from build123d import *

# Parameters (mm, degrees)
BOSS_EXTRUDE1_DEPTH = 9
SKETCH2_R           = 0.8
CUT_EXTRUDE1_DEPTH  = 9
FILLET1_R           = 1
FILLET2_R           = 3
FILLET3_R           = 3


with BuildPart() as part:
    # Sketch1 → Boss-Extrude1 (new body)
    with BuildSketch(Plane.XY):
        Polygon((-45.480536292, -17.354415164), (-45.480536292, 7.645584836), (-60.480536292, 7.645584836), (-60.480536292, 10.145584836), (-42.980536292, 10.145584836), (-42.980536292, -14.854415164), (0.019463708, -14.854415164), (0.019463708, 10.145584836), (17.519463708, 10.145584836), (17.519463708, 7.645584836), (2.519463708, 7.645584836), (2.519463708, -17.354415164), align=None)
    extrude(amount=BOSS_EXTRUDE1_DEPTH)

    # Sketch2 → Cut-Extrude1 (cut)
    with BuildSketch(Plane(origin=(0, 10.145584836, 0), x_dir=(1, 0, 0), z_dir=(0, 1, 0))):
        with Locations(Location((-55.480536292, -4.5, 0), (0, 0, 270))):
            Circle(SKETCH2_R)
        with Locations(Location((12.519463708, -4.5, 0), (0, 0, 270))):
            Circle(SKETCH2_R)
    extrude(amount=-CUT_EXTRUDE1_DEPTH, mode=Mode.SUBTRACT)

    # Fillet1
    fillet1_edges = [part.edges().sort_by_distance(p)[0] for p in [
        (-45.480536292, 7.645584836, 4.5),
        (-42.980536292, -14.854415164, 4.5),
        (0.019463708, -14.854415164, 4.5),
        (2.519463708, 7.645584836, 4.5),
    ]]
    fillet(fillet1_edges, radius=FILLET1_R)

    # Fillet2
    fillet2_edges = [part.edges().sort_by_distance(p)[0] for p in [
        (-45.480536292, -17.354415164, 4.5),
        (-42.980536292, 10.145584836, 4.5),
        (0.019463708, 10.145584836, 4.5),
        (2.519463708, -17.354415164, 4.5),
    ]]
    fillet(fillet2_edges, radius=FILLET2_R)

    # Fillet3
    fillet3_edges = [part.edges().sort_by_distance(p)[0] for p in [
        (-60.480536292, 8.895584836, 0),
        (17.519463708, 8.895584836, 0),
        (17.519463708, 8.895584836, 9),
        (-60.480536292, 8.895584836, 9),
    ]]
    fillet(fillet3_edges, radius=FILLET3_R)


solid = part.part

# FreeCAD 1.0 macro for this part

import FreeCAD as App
import Part
import Sketcher
from FreeCAD import Vector


def edges_at(feature, points):
    """Names of the edges that pass closest to the given points."""
    edges = feature.Shape.Edges
    near = lambda p: min(range(len(edges)), key=lambda i: edges[i].distToShape(Part.Vertex(*p))[0])
    return sorted({f"Edge{near(p) + 1}" for p in points})

doc = App.newDocument("Part")
body = doc.addObject("PartDesign::Body", "Body")

sketch1 = doc.addObject("Sketcher::SketchObject", "Sketch")
body.addObject(sketch1)
sketch1.AttachmentSupport = (doc.XY_Plane, [""])
sketch1.MapMode = "FlatFace"
sketch1.addGeometry([
    Part.LineSegment(Vector(-45.5, 7.6, 0), Vector(-45.5, -17.4, 0)),
    Part.LineSegment(Vector(-45.5, -17.4, 0), Vector(2.5, -17.4, 0)),
    Part.LineSegment(Vector(2.5, -17.4, 0), Vector(2.5, 7.6, 0)),
    Part.LineSegment(Vector(2.5, 7.6, 0), Vector(17.5, 7.6, 0)),
    Part.LineSegment(Vector(17.5, 7.6, 0), Vector(17.5, 10.1, 0)),
    Part.LineSegment(Vector(17.5, 10.1, 0), Vector(0, 10.1, 0)),
    Part.LineSegment(Vector(0, 10.1, 0), Vector(0, -14.9, 0)),
    Part.LineSegment(Vector(0, -14.9, 0), Vector(-43, -14.9, 0)),
    Part.LineSegment(Vector(-43, -14.9, 0), Vector(-43, 10.1, 0)),
    Part.LineSegment(Vector(-43, 10.1, 0), Vector(-60.5, 10.1, 0)),
    Part.LineSegment(Vector(-60.5, 10.1, 0), Vector(-60.5, 7.6, 0)),
    Part.LineSegment(Vector(-60.5, 7.6, 0), Vector(-45.5, 7.6, 0)),
], False)
sketch1.addConstraint([
    Sketcher.Constraint("Coincident", 0, 2, 1, 1),
    Sketcher.Constraint("Coincident", 1, 2, 2, 1),
    Sketcher.Constraint("Coincident", 2, 2, 3, 1),
    Sketcher.Constraint("Coincident", 3, 2, 4, 1),
    Sketcher.Constraint("Coincident", 4, 2, 5, 1),
    Sketcher.Constraint("Coincident", 5, 2, 6, 1),
    Sketcher.Constraint("Coincident", 6, 2, 7, 1),
    Sketcher.Constraint("Coincident", 7, 2, 8, 1),
    Sketcher.Constraint("Coincident", 8, 2, 9, 1),
    Sketcher.Constraint("Coincident", 9, 2, 10, 1),
    Sketcher.Constraint("Coincident", 10, 2, 11, 1),
    Sketcher.Constraint("Coincident", 11, 2, 0, 1),
    Sketcher.Constraint("Vertical", 0),
    Sketcher.Constraint("Horizontal", 1),
    Sketcher.Constraint("Vertical", 2),
    Sketcher.Constraint("Horizontal", 3),
    Sketcher.Constraint("Vertical", 4),
    Sketcher.Constraint("Horizontal", 5),
    Sketcher.Constraint("Vertical", 6),
    Sketcher.Constraint("Horizontal", 7),
    Sketcher.Constraint("Vertical", 8),
    Sketcher.Constraint("Horizontal", 9),
    Sketcher.Constraint("Vertical", 10),
    Sketcher.Constraint("Horizontal", 11),
    Sketcher.Constraint("Horizontal", 5, 2, 8, 2),
    Sketcher.Constraint("Horizontal", 3, 2, 10, 2),
    Sketcher.Constraint("Equal", 5, 9),
    Sketcher.Constraint("Equal", 3, 11),
    Sketcher.Constraint("Equal", 2, 6),
    Sketcher.Constraint("DistanceX", 1, 1, 1, 2, 48.0),
    Sketcher.Constraint("DistanceX", 3, 1, 3, 2, 15.0),
    Sketcher.Constraint("DistanceX", 7, 2, 7, 1, 43.0),
    Sketcher.Constraint("DistanceY", 0, 2, 0, 1, 25.0),
    Sketcher.Constraint("DistanceY", 4, 1, 4, 2, 2.5),
    Sketcher.Constraint("DistanceX", 0, 2, -1, 1, 45.480536),
    Sketcher.Constraint("DistanceY", 0, 2, -1, 1, 17.354415),
])
pad1 = doc.addObject("PartDesign::Pad", "Pad")
body.addObject(pad1)
pad1.Profile = sketch1
pad1.Length = 9

sketch2 = doc.addObject("Sketcher::SketchObject", "Sketch001")
body.addObject(sketch2)
sketch2.AttachmentSupport = (doc.XZ_Plane, [""])
sketch2.MapMode = "FlatFace"
sketch2.AttachmentOffset = App.Placement(Vector(0, 0, -10.145585), App.Rotation())
sketch2.addGeometry([
    Part.Circle(Vector(-55.5, 4.5, 0), Vector(0, 0, 1), 0.8),
    Part.Circle(Vector(12.5, 4.5, 0), Vector(0, 0, 1), 0.8),
], False)
sketch2.addConstraint([
    Sketcher.Constraint("Equal", 0, 1),
    Sketcher.Constraint("Horizontal", 0, 3, 1, 3),
    Sketcher.Constraint("Diameter", 0, 1.6),
    Sketcher.Constraint("DistanceX", 0, 3, 1, 3, 68.0),
    Sketcher.Constraint("DistanceY", -1, 1, 0, 3, 4.5),
    Sketcher.Constraint("DistanceX", 0, 3, -1, 1, 55.480536),
])
pocket1 = doc.addObject("PartDesign::Pocket", "Pocket")
body.addObject(pocket1)
pocket1.Profile = sketch2
pocket1.Length = 9
pocket1.Reversed = True
doc.recompute()

fillet = doc.addObject("PartDesign::Fillet", "Fillet")
body.addObject(fillet)
fillet.Base = (pocket1, edges_at(pocket1, [
    (-45.481, 7.646, 4.5),
    (-42.981, -14.854, 4.5),
    (0.019, -14.854, 4.5),
    (2.519, 7.646, 4.5),
]))
fillet.Radius = 1
doc.recompute()

fillet2 = doc.addObject("PartDesign::Fillet", "Fillet001")
body.addObject(fillet2)
fillet2.Base = (fillet, edges_at(fillet, [
    (-45.481, -17.354, 4.5),
    (-42.981, 10.146, 4.5),
    (0.019, 10.146, 4.5),
    (2.519, -17.354, 4.5),
]))
fillet2.Radius = 3
doc.recompute()

fillet3 = doc.addObject("PartDesign::Fillet", "Fillet002")
body.addObject(fillet3)
fillet3.Base = (fillet2, edges_at(fillet2, [
    (-60.481, 8.896, 0),
    (17.519, 8.896, 0),
    (17.519, 8.896, 9),
    (-60.481, 8.896, 9),
]))
fillet3.Radius = 3

doc.recompute()
